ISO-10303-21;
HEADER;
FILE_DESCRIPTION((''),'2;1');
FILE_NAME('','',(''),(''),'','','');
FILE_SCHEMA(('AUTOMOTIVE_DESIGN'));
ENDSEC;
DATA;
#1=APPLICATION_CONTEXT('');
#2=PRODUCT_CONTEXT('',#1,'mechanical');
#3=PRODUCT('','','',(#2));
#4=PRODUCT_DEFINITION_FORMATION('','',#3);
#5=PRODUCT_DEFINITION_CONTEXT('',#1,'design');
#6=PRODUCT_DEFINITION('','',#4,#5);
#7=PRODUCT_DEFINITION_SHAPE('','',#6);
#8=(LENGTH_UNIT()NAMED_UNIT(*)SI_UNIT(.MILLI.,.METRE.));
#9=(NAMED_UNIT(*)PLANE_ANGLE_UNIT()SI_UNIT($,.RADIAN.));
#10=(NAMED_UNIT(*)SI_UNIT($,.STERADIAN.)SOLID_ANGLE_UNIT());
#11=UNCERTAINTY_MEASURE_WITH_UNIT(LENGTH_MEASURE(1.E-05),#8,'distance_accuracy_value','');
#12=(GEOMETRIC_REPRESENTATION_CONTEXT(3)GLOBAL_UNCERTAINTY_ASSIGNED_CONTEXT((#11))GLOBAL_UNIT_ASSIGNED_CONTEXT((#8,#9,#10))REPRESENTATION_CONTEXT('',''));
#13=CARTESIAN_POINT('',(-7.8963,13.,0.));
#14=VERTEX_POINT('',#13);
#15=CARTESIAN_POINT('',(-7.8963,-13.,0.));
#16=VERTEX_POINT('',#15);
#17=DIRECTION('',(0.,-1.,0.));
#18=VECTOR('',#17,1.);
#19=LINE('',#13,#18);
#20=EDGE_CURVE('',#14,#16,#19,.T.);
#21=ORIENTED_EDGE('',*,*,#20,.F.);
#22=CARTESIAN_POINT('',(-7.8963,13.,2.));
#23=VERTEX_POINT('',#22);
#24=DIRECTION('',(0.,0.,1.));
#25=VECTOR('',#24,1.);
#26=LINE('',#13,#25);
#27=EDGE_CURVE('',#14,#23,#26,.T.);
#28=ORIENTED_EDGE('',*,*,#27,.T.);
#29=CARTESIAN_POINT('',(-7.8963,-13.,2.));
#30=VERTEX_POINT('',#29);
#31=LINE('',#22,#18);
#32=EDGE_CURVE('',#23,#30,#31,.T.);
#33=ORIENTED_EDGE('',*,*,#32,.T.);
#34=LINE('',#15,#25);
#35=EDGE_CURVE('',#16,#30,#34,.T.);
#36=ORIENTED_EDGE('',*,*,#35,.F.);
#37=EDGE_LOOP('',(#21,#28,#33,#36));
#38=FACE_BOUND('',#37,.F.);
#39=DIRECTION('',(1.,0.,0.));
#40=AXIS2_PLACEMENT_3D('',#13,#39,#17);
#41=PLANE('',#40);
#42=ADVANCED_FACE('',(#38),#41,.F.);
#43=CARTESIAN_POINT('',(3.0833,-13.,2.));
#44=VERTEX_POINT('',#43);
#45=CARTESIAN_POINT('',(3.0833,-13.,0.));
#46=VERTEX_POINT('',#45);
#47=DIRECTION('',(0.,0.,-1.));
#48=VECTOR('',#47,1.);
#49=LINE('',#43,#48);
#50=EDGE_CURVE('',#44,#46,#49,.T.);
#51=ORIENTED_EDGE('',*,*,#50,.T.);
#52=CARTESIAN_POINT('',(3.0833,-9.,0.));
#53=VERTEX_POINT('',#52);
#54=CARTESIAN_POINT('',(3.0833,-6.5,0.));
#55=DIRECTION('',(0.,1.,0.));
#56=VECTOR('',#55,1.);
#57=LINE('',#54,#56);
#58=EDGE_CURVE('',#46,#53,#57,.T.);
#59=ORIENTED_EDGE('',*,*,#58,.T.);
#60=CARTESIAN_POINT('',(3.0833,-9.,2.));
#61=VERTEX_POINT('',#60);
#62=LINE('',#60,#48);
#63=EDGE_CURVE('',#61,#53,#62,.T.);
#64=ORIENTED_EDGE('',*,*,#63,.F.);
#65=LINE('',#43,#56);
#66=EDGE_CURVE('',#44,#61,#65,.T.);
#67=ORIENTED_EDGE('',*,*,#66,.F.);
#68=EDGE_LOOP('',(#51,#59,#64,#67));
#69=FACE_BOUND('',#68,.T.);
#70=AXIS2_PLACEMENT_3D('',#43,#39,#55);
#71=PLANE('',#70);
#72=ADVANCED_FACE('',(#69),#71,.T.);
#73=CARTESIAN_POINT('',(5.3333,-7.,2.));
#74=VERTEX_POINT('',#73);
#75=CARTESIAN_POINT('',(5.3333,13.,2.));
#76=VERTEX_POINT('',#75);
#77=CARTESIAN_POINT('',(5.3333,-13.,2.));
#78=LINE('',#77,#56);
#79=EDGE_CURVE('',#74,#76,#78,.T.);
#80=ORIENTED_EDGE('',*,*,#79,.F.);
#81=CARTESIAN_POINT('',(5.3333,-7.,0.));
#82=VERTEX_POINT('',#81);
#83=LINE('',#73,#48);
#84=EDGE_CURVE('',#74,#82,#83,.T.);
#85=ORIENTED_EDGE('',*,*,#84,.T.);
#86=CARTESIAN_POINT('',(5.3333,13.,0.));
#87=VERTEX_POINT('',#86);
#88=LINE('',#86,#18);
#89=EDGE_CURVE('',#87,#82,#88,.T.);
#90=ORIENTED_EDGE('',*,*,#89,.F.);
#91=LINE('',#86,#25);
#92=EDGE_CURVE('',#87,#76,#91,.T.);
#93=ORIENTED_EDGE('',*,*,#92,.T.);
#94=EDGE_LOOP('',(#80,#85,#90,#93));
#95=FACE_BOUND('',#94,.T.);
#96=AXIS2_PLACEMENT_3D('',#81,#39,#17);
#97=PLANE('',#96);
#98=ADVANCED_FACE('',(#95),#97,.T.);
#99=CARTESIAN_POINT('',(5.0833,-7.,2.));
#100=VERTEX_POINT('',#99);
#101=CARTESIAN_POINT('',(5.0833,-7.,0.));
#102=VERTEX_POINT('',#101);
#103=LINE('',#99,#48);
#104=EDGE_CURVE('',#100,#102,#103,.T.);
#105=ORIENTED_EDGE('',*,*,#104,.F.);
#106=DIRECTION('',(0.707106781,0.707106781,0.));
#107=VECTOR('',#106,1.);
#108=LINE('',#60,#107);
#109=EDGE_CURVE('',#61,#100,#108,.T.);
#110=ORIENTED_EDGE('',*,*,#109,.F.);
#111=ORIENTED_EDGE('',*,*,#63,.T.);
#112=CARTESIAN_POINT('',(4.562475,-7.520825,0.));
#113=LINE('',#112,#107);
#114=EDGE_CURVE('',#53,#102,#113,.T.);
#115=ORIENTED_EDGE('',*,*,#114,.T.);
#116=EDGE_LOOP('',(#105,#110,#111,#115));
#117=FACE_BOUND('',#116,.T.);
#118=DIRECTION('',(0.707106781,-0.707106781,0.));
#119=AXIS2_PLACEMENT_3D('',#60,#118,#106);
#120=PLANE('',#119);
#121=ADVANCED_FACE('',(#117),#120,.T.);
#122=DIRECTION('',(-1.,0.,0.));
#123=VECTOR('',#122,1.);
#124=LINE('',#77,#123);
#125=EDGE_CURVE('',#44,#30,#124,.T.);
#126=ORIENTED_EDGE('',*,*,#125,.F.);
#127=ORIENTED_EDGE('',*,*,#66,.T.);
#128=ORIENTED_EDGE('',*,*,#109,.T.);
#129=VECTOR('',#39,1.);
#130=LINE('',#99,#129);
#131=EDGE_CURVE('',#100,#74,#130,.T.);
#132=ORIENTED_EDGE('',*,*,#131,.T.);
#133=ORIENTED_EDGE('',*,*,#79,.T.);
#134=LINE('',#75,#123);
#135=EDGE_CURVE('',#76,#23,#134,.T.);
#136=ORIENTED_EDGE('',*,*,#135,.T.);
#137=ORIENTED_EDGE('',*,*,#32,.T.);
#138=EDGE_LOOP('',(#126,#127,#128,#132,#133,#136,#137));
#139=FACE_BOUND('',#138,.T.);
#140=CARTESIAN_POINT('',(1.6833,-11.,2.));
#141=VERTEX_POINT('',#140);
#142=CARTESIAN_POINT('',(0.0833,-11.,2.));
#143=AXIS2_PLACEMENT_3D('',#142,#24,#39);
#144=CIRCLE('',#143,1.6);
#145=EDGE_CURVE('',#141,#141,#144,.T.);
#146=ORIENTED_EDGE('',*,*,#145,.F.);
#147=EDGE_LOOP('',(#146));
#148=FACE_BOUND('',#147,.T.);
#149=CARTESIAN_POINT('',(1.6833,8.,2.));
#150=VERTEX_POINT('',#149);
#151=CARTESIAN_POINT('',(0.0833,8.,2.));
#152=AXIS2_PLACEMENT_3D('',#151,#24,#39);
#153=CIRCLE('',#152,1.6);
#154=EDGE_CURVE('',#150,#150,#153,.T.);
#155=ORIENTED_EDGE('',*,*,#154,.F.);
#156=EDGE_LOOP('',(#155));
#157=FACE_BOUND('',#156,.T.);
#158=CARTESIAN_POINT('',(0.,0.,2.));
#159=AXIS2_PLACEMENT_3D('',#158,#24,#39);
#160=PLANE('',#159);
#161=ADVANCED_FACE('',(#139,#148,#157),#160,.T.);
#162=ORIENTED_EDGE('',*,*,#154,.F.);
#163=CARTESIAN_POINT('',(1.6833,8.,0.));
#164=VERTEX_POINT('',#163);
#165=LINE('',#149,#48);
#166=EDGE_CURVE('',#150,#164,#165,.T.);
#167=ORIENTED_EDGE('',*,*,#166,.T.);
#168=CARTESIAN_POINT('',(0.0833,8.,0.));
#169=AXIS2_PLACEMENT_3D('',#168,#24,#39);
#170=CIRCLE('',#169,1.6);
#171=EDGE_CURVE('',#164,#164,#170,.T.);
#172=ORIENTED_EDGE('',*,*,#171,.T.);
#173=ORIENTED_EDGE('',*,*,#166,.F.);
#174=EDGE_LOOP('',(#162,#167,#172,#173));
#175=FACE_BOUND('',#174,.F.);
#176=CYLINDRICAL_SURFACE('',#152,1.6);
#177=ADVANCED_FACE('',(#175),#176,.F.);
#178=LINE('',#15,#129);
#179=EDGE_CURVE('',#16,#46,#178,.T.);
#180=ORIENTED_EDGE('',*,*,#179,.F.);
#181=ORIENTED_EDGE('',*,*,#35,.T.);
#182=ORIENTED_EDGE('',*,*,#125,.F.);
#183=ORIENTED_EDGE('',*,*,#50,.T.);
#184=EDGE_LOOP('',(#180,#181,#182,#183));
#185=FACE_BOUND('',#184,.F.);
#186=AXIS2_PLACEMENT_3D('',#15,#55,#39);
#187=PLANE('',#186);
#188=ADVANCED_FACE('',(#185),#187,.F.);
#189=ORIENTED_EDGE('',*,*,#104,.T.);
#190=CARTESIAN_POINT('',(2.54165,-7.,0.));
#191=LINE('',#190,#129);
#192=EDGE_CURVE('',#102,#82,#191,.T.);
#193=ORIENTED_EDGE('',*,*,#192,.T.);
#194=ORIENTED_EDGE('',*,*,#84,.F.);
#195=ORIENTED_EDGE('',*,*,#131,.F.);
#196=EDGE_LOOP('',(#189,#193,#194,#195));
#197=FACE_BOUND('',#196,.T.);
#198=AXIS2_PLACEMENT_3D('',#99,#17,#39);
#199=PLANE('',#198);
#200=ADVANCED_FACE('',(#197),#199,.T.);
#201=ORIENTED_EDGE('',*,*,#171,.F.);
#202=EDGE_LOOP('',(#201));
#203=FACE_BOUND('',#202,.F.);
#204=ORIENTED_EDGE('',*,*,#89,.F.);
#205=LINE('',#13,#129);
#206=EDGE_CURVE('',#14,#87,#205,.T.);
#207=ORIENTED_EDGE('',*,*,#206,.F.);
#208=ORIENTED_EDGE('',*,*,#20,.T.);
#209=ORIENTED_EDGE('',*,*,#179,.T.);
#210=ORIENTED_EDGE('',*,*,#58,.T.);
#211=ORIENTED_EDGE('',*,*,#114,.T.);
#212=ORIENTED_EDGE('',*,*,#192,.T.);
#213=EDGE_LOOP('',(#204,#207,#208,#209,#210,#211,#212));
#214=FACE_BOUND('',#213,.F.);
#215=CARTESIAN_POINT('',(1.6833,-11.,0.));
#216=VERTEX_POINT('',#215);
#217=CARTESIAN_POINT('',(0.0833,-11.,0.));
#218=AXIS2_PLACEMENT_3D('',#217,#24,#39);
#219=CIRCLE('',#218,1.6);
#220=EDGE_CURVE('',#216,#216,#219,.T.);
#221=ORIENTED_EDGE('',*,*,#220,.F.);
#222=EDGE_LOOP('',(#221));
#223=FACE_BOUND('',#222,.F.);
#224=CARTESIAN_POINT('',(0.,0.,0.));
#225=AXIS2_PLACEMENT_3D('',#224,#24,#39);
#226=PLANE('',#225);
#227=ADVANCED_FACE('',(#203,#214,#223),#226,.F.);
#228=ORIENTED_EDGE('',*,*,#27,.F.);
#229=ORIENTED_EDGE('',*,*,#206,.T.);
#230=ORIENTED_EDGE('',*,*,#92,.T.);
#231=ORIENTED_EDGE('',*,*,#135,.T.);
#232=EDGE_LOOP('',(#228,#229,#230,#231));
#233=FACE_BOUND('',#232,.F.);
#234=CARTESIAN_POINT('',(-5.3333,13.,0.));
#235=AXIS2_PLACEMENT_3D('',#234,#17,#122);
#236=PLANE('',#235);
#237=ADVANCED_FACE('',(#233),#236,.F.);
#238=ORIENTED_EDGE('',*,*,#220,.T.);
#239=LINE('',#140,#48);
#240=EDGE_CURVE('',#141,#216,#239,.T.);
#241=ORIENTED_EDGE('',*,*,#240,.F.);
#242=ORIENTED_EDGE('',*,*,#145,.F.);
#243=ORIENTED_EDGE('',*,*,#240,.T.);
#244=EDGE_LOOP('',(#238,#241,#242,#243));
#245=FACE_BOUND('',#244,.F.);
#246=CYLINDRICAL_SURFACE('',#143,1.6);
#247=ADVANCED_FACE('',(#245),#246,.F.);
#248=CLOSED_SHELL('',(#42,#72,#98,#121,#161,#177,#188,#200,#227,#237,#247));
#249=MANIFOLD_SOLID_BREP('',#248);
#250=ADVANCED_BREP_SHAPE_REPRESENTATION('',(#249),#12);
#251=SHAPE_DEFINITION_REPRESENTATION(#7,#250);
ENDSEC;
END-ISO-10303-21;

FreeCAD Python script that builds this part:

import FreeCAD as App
import Part
import Sketcher
Q = App.Units.Quantity

doc = App.newDocument("Part")
body = doc.addObject("PartDesign::Body", "Body")

# Sketch on XY plane
sketch1 = body.newObject("Sketcher::SketchObject", "Sketch")
sketch1.AttachmentSupport = (doc.getObject("XY_Plane"), [""])
sketch1.MapMode = "FlatFace"
sketch1.addGeometry([
    Part.LineSegment(App.Vector(-8, -13, 0), App.Vector(5, -13, 0)),
    Part.LineSegment(App.Vector(5, -13, 0), App.Vector(5, 13, 0)),
    Part.LineSegment(App.Vector(5, 13, 0), App.Vector(-8, 13, 0)),
    Part.LineSegment(App.Vector(-8, 13, 0), App.Vector(-8, -13, 0)),
], False)
sketch1.addConstraint([
    Sketcher.Constraint("Coincident", 0, 2, 1, 1),
    Sketcher.Constraint("Coincident", 1, 2, 2, 1),
    Sketcher.Constraint("Coincident", 2, 2, 3, 1),
    Sketcher.Constraint("Coincident", 3, 2, 0, 1),
    Sketcher.Constraint("Horizontal", 0),
    Sketcher.Constraint("Vertical", 1),
    Sketcher.Constraint("Horizontal", 2),
    Sketcher.Constraint("Vertical", 3),
    Sketcher.Constraint("DistanceY", 1, 1, 1, 2, Q("26 mm")),
    Sketcher.Constraint("DistanceY", 0, 2, -1, 1, Q("13 mm")),
    Sketcher.Constraint("DistanceX", 0, 1, 0, 2, Q("13.2296 mm")),
    Sketcher.Constraint("DistanceX", -1, 1, 0, 2, Q("5.3333 mm")),
])
pad1 = body.newObject("PartDesign::Pad", "Pad")
pad1.Profile = sketch1
pad1.Length = 2

# Sketch on XY plane
sketch2 = body.newObject("Sketcher::SketchObject", "Sketch001")
sketch2.AttachmentSupport = (doc.getObject("XY_Plane"), [""])
sketch2.MapMode = "FlatFace"
sketch2.AttachmentOffset = App.Placement(App.Vector(0, 0, 2), App.Rotation())
sketch2.addGeometry([
    Part.LineSegment(App.Vector(3.08, -9, 0), App.Vector(3.08, -13, 0)),  # 0
    Part.LineSegment(App.Vector(3.08, -13, 0), App.Vector(5.33, -13, 0)),  # 1
    Part.LineSegment(App.Vector(5.33, -13, 0), App.Vector(5.33, -7, 0)),  # 2
    Part.LineSegment(App.Vector(5.33, -7, 0), App.Vector(5.08, -7, 0)),  # 3
    Part.LineSegment(App.Vector(5.08, -7, 0), App.Vector(3.08, -9, 0)),  # 4
    Part.Circle(App.Vector(0.08, 8, 0), App.Vector(0, 0, 1), 1.6),  # 5
    Part.Circle(App.Vector(0.08, -11, 0), App.Vector(0, 0, 1), 1.6),  # 6
], False)
sketch2.addConstraint([
    Sketcher.Constraint("Coincident", 0, 2, 1, 1),
    Sketcher.Constraint("Coincident", 1, 2, 2, 1),
    Sketcher.Constraint("Coincident", 2, 2, 3, 1),
    Sketcher.Constraint("Coincident", 3, 2, 4, 1),
    Sketcher.Constraint("Coincident", 4, 2, 0, 1),
    Sketcher.Constraint("Vertical", 0),
    Sketcher.Constraint("Horizontal", 1),
    Sketcher.Constraint("Vertical", 2),
    Sketcher.Constraint("Horizontal", 3),
    Sketcher.Constraint("Equal", 5, 6),
    Sketcher.Constraint("Vertical", 5, 3, 6, 3),
    Sketcher.Constraint("Diameter", 5, Q("3.2 mm")),
    Sketcher.Constraint("DistanceY", 0, 2, 0, 1, Q("4 mm")),
    Sketcher.Constraint("DistanceY", 2, 1, 2, 2, Q("6 mm")),
    Sketcher.Constraint("Angle", 4, Q("-135 deg")),
    Sketcher.Constraint("DistanceY", -1, 1, 5, 3, Q("8 mm")),
    Sketcher.Constraint("DistanceY", 6, 3, -1, 1, Q("11 mm")),
    Sketcher.Constraint("DistanceY", 0, 2, -1, 1, Q("13 mm")),
    Sketcher.Constraint("DistanceX", 6, 3, 0, 2, Q("3 mm")),
    Sketcher.Constraint("DistanceX", 1, 1, 1, 2, Q("2.25 mm")),
    Sketcher.Constraint("DistanceX", -1, 1, 5, 3, Q("0.0833 mm")),
])
pocket1 = body.newObject("PartDesign::Pocket", "Pocket")
pocket1.Profile = sketch2
pocket1.Length = 10

doc.recompute()
